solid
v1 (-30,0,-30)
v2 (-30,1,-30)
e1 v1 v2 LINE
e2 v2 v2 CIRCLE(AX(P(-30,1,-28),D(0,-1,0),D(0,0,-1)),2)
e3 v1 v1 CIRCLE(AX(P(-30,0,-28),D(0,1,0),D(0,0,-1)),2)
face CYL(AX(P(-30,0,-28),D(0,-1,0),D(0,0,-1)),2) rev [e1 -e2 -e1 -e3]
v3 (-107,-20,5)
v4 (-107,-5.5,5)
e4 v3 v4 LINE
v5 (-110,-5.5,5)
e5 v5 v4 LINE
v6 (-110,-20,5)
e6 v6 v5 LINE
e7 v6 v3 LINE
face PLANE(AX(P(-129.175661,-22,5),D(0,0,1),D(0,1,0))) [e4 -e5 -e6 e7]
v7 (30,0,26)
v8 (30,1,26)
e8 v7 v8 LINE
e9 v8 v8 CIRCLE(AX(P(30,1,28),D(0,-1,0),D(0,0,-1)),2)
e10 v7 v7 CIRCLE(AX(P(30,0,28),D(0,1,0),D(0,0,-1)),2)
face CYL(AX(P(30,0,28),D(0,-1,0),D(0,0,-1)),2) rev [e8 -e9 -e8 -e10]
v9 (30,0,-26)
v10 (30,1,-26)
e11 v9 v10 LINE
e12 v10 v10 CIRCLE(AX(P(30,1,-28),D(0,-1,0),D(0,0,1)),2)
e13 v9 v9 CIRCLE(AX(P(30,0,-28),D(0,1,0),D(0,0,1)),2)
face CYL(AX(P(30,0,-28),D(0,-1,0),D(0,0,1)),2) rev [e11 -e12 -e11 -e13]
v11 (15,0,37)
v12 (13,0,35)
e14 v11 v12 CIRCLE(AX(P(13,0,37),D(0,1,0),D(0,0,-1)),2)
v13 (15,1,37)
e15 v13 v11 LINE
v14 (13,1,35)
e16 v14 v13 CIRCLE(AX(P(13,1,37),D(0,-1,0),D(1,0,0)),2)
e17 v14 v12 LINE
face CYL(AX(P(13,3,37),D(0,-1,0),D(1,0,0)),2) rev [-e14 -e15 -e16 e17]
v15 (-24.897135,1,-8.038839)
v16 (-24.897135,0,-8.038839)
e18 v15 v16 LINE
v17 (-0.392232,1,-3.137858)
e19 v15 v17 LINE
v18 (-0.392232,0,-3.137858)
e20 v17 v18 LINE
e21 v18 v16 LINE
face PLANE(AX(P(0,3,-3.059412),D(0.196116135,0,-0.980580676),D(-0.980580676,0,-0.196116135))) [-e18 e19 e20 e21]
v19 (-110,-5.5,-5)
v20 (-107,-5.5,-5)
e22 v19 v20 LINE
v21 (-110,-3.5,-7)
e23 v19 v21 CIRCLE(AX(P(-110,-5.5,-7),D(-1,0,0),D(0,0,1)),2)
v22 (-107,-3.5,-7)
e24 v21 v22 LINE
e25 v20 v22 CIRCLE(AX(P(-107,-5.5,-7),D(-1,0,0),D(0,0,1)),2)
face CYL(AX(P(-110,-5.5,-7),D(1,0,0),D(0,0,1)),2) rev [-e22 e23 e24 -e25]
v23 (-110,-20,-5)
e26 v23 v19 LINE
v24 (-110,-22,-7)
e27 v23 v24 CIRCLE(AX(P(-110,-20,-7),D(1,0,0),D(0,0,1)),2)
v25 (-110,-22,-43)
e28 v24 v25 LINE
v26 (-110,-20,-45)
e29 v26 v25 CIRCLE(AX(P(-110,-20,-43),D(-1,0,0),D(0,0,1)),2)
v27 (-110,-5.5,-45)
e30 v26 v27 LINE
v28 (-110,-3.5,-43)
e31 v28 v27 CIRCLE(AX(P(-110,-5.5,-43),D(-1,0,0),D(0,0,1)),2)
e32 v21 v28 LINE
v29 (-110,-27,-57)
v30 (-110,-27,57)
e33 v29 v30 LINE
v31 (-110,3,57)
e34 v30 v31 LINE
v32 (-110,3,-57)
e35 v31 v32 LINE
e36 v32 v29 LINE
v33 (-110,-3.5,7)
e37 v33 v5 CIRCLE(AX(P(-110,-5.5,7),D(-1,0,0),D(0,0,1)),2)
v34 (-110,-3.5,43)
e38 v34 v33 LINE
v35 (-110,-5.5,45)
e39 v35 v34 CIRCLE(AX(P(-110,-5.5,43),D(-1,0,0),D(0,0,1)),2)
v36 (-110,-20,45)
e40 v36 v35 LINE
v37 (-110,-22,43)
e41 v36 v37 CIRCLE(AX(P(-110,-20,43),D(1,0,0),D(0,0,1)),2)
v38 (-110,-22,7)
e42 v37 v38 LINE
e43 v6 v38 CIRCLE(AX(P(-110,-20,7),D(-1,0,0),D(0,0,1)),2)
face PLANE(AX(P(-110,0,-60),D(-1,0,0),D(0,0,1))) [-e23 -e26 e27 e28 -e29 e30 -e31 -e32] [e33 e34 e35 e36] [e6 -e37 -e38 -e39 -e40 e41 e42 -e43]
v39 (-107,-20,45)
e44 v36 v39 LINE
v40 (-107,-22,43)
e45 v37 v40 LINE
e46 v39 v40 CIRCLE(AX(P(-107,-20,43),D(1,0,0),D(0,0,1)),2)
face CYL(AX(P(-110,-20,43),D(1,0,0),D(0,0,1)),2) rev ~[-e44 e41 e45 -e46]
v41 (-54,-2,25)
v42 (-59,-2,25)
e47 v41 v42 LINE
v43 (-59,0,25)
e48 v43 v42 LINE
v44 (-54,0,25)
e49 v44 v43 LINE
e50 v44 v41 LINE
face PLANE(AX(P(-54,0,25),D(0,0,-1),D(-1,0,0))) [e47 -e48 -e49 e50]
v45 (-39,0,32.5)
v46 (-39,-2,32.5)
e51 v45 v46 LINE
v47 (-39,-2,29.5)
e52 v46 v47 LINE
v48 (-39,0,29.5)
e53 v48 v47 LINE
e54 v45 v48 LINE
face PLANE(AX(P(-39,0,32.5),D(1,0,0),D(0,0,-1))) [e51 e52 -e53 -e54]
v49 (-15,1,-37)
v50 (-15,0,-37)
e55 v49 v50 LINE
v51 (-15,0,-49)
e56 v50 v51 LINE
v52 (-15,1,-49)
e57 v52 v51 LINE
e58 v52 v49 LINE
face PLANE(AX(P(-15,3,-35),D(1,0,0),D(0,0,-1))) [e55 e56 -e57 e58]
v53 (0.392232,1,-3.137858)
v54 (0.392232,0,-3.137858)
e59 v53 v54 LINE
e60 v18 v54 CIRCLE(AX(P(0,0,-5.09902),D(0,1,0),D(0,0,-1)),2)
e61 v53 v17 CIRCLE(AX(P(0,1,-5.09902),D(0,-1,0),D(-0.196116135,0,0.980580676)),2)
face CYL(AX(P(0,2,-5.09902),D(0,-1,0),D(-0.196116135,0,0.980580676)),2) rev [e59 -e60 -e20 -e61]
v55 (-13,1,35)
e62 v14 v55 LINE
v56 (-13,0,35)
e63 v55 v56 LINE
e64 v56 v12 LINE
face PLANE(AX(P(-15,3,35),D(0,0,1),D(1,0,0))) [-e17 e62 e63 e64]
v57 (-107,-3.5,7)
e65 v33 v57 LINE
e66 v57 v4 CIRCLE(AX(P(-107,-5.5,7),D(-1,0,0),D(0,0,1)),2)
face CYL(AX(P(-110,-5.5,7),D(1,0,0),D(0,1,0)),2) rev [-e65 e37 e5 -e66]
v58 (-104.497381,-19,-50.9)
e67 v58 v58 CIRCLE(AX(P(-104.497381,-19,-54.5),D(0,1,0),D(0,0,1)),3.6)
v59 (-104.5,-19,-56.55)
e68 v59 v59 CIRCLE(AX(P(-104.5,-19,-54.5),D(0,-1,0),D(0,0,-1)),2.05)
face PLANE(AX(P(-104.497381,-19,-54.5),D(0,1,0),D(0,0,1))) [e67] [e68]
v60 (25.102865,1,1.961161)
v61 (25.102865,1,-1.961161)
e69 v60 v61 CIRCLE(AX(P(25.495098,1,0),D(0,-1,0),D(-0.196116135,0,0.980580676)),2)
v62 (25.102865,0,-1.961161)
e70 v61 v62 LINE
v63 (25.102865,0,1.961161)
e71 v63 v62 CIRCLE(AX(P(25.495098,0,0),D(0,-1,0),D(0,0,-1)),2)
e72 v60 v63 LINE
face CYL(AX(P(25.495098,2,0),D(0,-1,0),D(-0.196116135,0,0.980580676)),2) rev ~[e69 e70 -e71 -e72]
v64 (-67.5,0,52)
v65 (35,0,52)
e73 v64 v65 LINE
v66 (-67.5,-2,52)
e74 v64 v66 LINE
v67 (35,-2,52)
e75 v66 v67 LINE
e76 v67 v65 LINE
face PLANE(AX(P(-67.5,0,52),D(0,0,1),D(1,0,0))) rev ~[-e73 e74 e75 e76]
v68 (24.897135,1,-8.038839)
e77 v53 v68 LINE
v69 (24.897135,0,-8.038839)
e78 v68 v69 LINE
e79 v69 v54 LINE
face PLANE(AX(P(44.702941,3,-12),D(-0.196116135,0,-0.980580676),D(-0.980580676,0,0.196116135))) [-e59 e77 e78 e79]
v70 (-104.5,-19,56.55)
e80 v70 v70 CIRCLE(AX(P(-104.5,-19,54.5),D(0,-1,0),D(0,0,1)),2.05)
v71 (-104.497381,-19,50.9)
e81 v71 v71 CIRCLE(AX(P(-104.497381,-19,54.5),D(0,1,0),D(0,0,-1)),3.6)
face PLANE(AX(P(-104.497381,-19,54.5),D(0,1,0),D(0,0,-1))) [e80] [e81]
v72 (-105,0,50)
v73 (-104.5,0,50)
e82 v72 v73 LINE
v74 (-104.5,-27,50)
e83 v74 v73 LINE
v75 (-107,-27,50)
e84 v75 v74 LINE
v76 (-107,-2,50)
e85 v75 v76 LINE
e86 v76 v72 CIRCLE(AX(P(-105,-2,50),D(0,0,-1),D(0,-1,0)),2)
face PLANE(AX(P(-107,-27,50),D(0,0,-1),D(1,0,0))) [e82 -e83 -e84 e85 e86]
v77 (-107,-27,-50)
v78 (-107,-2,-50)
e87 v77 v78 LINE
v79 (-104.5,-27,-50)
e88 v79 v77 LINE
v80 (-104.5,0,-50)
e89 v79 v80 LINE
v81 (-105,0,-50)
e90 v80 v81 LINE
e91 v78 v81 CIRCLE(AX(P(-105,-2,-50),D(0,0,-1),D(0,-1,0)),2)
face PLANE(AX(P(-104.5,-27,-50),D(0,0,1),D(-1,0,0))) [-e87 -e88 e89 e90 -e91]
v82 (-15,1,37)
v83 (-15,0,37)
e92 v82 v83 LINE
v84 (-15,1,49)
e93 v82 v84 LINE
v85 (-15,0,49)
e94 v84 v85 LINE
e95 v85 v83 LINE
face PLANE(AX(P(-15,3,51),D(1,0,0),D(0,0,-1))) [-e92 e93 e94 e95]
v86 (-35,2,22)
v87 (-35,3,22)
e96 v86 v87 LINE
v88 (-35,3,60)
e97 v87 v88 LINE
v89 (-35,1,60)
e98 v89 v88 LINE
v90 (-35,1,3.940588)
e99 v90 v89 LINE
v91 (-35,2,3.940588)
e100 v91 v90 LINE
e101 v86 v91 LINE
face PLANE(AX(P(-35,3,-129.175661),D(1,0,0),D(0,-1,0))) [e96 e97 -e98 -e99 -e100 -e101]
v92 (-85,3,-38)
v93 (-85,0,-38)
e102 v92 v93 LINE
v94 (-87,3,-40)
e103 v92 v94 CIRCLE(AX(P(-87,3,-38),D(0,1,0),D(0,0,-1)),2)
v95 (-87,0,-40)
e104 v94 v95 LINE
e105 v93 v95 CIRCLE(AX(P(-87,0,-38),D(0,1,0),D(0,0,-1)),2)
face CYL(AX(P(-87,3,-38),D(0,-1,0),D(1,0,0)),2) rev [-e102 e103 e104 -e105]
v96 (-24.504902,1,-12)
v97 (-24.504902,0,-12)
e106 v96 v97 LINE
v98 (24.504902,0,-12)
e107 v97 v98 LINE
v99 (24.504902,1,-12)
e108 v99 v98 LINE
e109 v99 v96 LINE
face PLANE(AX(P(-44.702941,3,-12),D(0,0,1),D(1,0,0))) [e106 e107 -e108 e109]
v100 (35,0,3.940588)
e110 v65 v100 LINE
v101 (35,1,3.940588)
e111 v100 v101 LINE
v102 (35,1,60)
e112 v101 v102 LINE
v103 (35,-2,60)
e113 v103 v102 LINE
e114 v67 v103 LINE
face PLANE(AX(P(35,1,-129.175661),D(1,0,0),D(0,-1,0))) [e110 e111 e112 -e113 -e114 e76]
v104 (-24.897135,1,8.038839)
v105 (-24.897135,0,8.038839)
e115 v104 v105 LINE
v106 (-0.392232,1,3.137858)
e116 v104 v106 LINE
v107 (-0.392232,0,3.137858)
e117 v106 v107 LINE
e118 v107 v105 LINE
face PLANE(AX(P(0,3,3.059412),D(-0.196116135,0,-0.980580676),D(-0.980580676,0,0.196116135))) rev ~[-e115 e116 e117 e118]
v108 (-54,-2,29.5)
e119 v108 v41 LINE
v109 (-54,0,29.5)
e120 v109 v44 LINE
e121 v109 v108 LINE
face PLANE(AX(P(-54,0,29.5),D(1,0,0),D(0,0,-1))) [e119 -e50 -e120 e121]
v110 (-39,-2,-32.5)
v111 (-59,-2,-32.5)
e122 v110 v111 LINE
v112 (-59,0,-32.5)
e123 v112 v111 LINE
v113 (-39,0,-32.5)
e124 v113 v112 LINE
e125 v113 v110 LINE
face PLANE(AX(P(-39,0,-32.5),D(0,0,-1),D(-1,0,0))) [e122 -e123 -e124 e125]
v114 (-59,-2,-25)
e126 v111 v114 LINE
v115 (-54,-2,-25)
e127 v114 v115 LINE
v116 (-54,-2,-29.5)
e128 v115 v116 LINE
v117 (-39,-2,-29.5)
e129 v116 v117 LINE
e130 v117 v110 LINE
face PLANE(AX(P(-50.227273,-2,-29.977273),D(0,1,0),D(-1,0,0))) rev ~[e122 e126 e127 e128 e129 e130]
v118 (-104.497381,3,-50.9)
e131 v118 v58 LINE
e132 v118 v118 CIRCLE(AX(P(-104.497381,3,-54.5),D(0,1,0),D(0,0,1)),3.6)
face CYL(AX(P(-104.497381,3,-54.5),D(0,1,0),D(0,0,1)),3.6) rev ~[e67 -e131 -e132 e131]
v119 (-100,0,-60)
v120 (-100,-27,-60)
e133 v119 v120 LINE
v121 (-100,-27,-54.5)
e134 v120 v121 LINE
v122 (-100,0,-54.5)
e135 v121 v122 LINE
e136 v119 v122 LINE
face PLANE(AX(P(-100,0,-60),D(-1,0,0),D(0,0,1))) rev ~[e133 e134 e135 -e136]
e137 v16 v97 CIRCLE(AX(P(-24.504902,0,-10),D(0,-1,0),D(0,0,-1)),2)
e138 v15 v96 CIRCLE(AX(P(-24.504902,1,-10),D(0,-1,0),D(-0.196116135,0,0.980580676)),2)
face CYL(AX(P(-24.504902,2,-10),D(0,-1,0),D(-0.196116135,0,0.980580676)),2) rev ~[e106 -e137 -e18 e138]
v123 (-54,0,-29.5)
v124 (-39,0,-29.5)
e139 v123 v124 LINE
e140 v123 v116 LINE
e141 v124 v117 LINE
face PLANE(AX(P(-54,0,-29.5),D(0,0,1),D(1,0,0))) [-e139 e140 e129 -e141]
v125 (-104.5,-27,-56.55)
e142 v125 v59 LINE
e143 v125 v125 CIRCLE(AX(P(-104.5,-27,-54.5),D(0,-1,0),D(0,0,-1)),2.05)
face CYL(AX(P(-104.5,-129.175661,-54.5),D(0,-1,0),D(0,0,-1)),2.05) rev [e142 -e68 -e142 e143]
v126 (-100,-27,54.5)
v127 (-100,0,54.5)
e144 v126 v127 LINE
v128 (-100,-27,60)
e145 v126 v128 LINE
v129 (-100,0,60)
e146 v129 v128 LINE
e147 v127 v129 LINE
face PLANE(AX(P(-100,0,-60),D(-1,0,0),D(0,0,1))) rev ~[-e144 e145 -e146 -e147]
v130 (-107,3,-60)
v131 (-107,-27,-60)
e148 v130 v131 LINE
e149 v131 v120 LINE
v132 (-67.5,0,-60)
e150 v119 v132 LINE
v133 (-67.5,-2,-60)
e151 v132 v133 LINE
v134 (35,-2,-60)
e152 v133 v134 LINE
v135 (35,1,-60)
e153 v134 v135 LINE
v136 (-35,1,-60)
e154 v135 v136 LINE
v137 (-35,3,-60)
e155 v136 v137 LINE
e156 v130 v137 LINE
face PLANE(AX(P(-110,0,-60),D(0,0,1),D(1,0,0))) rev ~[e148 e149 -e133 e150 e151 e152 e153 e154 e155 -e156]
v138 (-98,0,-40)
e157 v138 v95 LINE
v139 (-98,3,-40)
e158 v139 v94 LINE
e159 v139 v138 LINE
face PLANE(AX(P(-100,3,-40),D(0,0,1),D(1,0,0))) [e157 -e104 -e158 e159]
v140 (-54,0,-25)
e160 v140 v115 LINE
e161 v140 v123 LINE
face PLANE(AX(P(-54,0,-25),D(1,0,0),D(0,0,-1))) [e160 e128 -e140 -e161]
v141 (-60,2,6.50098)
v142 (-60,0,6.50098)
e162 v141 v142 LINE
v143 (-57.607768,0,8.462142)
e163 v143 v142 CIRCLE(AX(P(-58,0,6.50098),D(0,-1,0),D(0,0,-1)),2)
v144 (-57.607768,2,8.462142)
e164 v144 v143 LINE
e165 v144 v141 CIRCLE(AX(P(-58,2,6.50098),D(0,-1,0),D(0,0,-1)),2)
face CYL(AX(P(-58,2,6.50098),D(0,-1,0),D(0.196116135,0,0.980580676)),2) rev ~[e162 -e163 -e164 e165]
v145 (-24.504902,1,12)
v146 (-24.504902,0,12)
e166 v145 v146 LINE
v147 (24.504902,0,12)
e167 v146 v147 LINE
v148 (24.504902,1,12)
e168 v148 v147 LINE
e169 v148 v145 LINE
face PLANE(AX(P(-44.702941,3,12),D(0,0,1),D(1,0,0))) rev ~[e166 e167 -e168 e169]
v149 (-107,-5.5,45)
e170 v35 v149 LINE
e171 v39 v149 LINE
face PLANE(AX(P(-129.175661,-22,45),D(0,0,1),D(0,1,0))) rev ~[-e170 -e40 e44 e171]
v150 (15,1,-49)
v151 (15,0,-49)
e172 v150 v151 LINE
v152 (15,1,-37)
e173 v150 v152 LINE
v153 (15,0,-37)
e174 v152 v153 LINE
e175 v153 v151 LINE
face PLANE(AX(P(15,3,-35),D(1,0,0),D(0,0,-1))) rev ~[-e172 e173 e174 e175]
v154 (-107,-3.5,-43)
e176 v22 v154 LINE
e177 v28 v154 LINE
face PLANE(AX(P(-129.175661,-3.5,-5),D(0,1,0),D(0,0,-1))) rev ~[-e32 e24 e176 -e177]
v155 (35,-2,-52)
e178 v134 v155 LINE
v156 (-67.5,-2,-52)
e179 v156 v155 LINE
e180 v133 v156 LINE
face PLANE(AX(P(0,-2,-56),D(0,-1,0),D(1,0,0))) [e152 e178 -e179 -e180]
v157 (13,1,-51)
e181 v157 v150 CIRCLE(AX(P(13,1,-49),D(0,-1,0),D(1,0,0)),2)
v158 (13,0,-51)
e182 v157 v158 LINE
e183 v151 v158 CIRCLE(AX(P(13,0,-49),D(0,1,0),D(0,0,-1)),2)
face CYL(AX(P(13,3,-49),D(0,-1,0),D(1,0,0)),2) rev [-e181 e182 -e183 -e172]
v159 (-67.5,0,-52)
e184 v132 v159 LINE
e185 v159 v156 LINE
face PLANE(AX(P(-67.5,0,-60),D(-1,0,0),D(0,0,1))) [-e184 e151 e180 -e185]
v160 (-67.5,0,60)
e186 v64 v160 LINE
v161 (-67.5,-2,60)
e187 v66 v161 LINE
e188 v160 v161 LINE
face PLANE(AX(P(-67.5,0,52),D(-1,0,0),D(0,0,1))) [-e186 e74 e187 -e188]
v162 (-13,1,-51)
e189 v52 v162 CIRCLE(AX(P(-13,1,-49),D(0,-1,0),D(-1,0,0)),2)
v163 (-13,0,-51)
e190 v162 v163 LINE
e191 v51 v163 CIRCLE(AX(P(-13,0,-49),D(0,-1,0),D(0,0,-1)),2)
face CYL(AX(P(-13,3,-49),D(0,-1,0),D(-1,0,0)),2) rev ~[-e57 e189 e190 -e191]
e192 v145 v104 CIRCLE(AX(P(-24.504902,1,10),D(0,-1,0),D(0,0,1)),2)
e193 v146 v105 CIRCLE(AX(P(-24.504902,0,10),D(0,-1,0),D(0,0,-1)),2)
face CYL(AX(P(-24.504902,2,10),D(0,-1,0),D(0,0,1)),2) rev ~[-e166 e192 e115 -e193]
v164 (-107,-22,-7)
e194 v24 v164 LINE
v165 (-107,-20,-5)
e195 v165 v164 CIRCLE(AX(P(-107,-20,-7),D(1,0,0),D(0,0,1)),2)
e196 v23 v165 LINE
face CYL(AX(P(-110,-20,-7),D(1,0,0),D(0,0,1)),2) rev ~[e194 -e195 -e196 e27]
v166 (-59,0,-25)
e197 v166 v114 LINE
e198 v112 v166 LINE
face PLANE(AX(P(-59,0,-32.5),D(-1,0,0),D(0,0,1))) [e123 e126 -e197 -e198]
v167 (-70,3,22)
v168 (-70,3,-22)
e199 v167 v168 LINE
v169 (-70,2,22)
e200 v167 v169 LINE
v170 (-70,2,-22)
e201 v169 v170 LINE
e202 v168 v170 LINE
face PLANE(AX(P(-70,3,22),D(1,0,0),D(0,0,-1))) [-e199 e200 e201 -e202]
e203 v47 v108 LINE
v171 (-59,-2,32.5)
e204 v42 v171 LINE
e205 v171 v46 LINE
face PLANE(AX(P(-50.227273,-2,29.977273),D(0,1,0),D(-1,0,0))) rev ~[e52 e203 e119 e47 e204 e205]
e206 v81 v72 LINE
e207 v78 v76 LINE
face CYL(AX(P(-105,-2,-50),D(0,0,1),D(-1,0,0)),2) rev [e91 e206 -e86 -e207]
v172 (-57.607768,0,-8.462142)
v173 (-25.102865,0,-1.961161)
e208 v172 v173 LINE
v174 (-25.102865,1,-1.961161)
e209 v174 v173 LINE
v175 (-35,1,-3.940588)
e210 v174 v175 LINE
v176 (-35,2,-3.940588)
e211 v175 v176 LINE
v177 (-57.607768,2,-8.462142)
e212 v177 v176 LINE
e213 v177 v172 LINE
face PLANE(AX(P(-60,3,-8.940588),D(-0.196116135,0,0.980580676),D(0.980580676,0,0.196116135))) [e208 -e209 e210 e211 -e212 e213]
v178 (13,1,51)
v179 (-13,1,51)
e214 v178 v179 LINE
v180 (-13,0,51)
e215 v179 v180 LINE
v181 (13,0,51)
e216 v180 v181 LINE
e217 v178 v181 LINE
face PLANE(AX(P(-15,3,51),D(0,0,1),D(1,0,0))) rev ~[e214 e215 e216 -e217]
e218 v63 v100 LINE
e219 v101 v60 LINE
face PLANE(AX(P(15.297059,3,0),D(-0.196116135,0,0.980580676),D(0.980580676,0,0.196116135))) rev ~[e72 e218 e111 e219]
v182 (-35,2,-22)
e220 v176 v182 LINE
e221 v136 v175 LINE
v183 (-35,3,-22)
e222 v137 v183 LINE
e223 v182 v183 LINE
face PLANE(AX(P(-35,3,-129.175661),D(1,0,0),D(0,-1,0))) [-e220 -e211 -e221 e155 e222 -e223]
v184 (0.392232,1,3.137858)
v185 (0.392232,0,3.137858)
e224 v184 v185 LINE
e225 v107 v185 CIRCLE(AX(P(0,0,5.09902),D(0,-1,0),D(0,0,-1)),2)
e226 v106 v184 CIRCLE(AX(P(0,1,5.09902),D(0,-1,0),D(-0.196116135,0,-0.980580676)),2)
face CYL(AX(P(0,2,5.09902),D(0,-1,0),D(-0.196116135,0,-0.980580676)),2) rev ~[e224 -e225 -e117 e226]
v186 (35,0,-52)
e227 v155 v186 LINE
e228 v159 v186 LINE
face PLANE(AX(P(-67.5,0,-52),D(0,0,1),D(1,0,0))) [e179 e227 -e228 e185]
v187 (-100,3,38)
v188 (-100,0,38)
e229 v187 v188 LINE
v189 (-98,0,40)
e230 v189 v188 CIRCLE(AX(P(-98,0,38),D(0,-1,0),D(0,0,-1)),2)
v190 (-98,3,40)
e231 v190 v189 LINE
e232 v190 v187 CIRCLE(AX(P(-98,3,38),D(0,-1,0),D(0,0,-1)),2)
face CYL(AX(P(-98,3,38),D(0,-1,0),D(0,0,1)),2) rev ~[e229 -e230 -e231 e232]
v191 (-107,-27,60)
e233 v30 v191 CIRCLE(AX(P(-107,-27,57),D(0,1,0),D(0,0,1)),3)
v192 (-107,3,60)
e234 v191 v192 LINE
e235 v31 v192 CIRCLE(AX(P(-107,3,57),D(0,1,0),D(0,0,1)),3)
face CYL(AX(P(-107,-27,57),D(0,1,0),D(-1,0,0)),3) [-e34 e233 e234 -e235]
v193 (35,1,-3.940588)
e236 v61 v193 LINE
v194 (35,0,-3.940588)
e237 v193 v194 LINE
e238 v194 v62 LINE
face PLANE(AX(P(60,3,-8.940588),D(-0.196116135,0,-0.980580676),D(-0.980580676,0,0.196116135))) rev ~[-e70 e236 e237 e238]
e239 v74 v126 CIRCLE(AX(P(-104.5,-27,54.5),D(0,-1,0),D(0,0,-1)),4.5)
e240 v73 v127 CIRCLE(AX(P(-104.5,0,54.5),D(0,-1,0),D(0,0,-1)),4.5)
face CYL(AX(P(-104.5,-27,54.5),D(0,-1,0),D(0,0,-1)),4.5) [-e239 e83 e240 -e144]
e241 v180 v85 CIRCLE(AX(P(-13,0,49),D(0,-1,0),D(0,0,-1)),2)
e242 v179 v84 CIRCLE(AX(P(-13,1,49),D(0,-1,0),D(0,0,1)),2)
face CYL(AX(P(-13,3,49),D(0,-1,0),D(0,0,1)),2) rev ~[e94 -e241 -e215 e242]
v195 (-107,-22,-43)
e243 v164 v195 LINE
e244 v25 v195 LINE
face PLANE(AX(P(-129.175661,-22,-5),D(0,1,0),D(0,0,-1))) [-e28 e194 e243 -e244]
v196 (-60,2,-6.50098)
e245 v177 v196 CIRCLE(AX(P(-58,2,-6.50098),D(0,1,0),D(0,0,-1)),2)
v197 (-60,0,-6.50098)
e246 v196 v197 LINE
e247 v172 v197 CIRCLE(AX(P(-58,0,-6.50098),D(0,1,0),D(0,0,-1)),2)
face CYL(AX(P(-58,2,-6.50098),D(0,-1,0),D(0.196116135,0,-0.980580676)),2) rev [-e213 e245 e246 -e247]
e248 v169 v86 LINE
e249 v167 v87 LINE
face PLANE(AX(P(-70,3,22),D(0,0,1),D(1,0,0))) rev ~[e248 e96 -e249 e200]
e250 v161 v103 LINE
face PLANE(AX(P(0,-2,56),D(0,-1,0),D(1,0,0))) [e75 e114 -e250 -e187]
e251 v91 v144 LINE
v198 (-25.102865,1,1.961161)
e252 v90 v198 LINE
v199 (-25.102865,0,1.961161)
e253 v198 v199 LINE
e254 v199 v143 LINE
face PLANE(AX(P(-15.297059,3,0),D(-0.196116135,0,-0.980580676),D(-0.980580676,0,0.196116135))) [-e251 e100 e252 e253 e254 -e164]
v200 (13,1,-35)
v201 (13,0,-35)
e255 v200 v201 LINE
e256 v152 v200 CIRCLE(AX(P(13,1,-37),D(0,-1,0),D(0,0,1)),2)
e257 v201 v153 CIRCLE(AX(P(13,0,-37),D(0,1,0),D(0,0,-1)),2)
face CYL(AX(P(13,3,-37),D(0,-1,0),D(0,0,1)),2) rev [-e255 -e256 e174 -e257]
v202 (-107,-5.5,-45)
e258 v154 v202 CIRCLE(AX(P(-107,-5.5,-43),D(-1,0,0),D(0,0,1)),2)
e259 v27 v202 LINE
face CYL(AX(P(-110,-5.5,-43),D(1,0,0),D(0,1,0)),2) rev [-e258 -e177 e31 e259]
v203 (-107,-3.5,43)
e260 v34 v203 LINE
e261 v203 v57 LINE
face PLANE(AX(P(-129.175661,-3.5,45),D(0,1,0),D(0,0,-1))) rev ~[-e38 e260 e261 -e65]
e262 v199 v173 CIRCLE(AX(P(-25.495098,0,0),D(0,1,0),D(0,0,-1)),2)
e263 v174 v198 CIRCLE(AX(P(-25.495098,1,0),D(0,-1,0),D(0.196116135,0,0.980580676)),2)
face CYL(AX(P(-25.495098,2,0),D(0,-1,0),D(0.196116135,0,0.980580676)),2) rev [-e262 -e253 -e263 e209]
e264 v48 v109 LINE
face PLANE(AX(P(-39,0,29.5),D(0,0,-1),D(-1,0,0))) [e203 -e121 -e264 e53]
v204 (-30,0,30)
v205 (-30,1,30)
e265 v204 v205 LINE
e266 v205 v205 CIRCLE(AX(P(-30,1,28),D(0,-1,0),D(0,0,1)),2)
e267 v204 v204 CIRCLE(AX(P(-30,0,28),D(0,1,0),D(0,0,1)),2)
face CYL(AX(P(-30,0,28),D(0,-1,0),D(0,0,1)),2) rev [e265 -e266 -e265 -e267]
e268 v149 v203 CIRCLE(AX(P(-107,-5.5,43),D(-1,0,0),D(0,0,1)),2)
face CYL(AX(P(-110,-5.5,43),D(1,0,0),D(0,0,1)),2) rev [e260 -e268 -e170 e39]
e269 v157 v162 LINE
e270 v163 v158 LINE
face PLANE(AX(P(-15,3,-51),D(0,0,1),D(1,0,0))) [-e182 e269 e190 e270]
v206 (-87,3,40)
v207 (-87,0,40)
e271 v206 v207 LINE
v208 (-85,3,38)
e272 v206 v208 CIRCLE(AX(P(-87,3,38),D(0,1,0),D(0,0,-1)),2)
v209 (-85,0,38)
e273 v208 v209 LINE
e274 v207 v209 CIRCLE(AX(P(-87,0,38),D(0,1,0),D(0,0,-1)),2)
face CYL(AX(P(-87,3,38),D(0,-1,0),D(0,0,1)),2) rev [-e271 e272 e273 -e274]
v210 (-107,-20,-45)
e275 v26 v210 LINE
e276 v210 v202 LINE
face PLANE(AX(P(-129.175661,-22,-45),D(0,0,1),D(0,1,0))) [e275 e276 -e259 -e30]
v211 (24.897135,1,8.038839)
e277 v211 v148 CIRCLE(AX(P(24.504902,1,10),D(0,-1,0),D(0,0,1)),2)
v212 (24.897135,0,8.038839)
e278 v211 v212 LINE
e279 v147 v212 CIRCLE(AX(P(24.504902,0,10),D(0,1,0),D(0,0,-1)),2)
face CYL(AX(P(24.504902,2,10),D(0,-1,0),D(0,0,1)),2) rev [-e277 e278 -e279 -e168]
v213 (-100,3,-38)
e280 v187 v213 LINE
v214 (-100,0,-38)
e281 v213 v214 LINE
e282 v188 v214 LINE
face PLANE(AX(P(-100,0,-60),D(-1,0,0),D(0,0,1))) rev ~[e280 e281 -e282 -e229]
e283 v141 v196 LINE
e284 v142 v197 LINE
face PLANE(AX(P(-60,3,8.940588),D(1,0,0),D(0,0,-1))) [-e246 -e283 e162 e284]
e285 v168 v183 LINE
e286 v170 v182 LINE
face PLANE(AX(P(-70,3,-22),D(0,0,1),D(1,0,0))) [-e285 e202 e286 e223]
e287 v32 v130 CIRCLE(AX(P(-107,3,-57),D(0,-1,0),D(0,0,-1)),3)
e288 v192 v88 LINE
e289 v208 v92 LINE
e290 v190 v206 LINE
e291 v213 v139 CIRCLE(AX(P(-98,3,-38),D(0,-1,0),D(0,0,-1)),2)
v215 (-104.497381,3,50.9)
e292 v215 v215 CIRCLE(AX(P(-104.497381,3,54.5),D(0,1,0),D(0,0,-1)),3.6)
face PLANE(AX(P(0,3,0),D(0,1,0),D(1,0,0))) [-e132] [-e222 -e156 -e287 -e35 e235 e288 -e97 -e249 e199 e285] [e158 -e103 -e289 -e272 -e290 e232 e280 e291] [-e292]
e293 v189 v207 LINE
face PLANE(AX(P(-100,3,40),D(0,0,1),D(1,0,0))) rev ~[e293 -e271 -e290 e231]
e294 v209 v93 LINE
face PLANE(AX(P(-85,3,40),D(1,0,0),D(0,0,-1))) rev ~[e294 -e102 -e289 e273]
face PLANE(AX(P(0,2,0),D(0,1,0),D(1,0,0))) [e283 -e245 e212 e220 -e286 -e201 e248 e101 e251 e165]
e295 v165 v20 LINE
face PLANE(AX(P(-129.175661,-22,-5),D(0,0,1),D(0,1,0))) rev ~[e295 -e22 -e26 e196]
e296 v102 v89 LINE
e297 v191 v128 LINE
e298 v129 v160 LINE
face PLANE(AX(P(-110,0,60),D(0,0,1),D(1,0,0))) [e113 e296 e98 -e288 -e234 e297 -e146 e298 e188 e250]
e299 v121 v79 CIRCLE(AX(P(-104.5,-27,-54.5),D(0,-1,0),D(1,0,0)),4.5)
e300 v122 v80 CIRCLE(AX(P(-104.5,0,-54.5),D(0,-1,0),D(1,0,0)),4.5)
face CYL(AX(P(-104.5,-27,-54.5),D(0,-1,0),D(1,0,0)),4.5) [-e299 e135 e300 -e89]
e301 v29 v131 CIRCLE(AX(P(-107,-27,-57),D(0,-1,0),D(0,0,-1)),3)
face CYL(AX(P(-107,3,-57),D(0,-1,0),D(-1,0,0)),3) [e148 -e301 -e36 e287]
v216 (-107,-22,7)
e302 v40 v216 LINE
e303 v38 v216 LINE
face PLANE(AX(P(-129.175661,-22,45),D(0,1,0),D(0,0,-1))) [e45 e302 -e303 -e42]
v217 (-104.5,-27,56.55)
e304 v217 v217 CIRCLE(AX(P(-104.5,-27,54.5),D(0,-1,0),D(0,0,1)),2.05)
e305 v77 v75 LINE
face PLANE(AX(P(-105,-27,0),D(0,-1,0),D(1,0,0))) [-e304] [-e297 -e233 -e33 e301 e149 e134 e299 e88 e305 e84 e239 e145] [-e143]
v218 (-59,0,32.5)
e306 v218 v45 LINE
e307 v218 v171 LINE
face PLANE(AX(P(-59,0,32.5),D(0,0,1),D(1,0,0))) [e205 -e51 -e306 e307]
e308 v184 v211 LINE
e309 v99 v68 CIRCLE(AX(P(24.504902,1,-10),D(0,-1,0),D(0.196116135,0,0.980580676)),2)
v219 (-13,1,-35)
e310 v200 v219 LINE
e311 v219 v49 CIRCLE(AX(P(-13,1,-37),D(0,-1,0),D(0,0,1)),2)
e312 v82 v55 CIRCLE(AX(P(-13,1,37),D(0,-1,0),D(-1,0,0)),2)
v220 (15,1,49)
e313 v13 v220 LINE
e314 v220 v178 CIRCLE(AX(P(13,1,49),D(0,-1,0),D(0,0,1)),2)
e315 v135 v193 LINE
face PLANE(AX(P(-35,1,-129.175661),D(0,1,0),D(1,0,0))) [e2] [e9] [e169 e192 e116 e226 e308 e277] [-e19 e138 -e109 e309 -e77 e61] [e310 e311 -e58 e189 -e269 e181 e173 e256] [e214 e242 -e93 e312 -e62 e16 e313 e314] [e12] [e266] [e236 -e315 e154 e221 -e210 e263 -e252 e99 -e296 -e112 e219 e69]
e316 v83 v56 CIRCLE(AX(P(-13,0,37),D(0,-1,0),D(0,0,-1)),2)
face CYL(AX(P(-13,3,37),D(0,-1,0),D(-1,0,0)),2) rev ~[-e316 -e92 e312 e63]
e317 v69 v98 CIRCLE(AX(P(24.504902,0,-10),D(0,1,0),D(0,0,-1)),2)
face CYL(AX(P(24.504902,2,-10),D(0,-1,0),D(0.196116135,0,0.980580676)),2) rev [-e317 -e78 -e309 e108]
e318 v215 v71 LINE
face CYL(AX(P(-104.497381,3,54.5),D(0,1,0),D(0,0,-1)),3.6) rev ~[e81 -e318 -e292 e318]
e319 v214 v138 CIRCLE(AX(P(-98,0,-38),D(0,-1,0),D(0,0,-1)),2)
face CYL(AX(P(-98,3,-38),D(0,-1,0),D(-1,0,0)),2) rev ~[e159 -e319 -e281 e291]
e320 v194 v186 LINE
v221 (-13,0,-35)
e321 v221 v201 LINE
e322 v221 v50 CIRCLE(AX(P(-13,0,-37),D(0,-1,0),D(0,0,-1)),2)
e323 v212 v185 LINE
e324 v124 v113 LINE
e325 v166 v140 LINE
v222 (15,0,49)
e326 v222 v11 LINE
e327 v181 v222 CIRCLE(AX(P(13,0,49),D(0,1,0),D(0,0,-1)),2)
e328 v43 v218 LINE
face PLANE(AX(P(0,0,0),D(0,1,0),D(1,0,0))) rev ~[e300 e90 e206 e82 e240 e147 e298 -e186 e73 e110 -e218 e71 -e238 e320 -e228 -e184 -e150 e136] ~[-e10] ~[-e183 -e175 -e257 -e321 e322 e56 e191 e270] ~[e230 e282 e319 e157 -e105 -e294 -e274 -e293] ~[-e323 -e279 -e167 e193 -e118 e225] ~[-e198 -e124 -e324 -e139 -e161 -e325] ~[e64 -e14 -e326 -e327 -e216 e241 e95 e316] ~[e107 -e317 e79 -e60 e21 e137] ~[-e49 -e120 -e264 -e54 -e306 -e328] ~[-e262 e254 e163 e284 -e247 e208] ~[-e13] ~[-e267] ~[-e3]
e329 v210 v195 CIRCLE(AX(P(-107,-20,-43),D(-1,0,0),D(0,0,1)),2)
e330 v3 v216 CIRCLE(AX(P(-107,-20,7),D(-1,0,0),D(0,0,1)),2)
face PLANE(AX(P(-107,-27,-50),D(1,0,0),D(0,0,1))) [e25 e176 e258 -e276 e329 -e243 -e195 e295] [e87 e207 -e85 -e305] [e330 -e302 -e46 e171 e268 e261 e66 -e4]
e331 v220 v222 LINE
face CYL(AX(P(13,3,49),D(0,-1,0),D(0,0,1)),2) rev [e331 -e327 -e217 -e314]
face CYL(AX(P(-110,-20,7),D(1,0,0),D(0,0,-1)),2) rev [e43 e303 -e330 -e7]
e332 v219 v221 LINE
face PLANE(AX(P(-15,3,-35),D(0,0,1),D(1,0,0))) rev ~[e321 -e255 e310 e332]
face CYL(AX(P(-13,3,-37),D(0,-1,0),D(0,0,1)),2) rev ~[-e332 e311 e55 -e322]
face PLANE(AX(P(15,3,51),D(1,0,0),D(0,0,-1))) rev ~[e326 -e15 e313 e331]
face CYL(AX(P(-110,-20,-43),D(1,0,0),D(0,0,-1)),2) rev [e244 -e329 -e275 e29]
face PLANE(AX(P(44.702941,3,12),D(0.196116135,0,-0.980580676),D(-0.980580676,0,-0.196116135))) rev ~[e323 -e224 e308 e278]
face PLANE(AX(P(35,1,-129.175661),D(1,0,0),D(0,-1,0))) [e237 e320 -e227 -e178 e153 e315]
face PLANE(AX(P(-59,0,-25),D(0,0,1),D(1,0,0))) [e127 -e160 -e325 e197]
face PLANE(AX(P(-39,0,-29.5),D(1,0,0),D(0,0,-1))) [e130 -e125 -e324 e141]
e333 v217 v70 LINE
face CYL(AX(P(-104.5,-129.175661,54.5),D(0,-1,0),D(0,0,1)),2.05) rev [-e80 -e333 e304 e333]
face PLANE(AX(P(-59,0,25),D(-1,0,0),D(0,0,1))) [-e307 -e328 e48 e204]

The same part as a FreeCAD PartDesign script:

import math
import FreeCAD as App
import Part
import Sketcher
from FreeCAD import Vector
Q = App.Units.Quantity


def edges_at(feature, points):
    """Names of the edges that pass closest to the given points."""
    edges = feature.Shape.Edges
    near = lambda p: min(range(len(edges)), key=lambda i: edges[i].distToShape(Part.Vertex(*p))[0])
    return sorted({f"Edge{near(p) + 1}" for p in points})


def add_polygon(sketch, points):
    """Adds a closed chain of lines whose ends are joined by coincident constraints."""
    first, n = sketch.GeometryCount, len(points)
    for a, b in zip(points, points[1:] + points[:1]):
        sketch.addGeometry(Part.LineSegment(App.Vector(*a, 0), App.Vector(*b, 0)), False)
    for i in range(n):
        sketch.addConstraint(Sketcher.Constraint("Coincident", first + i, 2, first + (i + 1) % n, 1))

doc = App.newDocument("Part")
body = doc.addObject("PartDesign::Body", "Body")

# Sketch on XZ plane
sketch1 = body.newObject("Sketcher::SketchObject", "Sketch")
sketch1.AttachmentSupport = (doc.getObject("XZ_Plane"), [""])
sketch1.MapMode = "FlatFace"
add_polygon(sketch1, [(-110, -60), (-110, 60), (110, 60), (110, -60)])  # lines 0-3
sketch1.addConstraint([
    Sketcher.Constraint("Vertical", 0),
    Sketcher.Constraint("Horizontal", 1),
    Sketcher.Constraint("Vertical", 2),
    Sketcher.Constraint("Horizontal", 3),
    Sketcher.Constraint("Symmetric", 0, 2, 2, 2, -1, 1),
    Sketcher.Constraint("DistanceX", 1, 1, 1, 2, Q("220 mm")),
    Sketcher.Constraint("DistanceY", 0, 1, 0, 2, Q("120 mm")),
])
pad1 = body.newObject("PartDesign::Pad", "Pad")
pad1.Profile = sketch1
pad1.Length = 3
pad1.Reversed = True

# Sketch on XZ plane
sketch2 = body.newObject("Sketcher::SketchObject", "Sketch001")
sketch2.AttachmentSupport = (doc.getObject("XZ_Plane"), [""])
sketch2.MapMode = "FlatFace"
add_polygon(sketch2, [(-110, 60), (-110, -60), (-100, -60), (-100, 60)])  # lines 0-3
add_polygon(sketch2, [(100, 60), (100, -60), (110, -60), (110, 60)])  # lines 4-7
sketch2.addConstraint([
    Sketcher.Constraint("Vertical", 0),
    Sketcher.Constraint("Horizontal", 1),
    Sketcher.Constraint("Vertical", 2),
    Sketcher.Constraint("Horizontal", 3),
    Sketcher.Constraint("Vertical", 4),
    Sketcher.Constraint("Horizontal", 5),
    Sketcher.Constraint("Vertical", 6),
    Sketcher.Constraint("Horizontal", 7),
    Sketcher.Constraint("Symmetric", 2, 2, 4, 2, -1, 1),
    Sketcher.Constraint("Symmetric", 0, 2, 6, 2, -1, 1),
    Sketcher.Constraint("Horizontal", 1, 2, 4, 2),
    Sketcher.Constraint("DistanceX", 1, 1, 1, 2, Q("10 mm")),
    Sketcher.Constraint("DistanceY", 0, 2, 0, 1, Q("120 mm")),
    Sketcher.Constraint("DistanceX", 0, 2, -1, 1, Q("110 mm")),
])
pad2 = body.newObject("PartDesign::Pad", "Pad001")
pad2.Profile = sketch2
pad2.Length = 27

# Sketch on XZ plane
sketch3 = body.newObject("Sketcher::SketchObject", "Sketch002")
sketch3.AttachmentSupport = (doc.getObject("XZ_Plane"), [""])
sketch3.MapMode = "FlatFace"
sketch3.addGeometry([
    Part.Circle(Vector(104.5, -54.5, 0), Vector(0, 0, 1), 2),
    Part.Circle(Vector(-104.5, -54.5, 0), Vector(0, 0, 1), 2),
    Part.Circle(Vector(-104.5, 54.5, 0), Vector(0, 0, 1), 2),
    Part.Circle(Vector(104.5, 54.5, 0), Vector(0, 0, 1), 2),
], False)
sketch3.addConstraint([
    Sketcher.Constraint("Equal", 0, 1),
    Sketcher.Constraint("Equal", 1, 2),
    Sketcher.Constraint("Equal", 2, 3),
    Sketcher.Constraint("Symmetric", 0, 3, 2, 3, -1, 1),
    Sketcher.Constraint("Symmetric", 1, 3, 3, 3, -1, 1),
    Sketcher.Constraint("Symmetric", 0, 3, 1, 3, -2),
    Sketcher.Constraint("Diameter", 0, Q("4.1 mm")),
    Sketcher.Constraint("DistanceX", 1, 3, 0, 3, Q("209 mm")),
    Sketcher.Constraint("DistanceY", 1, 3, 2, 3, Q("109 mm")),
])
pocket1 = body.newObject("PartDesign::Pocket", "Pocket")
pocket1.Profile = sketch3
pocket1.Type = "ThroughAll"
pocket1.Midplane = True

# Sketch on XZ plane
sketch4 = body.newObject("Sketcher::SketchObject", "Sketch003")
sketch4.AttachmentSupport = (doc.getObject("XZ_Plane"), [""])
sketch4.MapMode = "FlatFace"
sketch4.AttachmentOffset = App.Placement(Vector(0, 0, -3), App.Rotation())
sketch4.addGeometry([
    Part.Circle(Vector(-104.5, -54.5, 0), Vector(0, 0, 1), 3.6),
    Part.Circle(Vector(-104.5, 54.5, 0), Vector(0, 0, 1), 3.6),
    Part.Circle(Vector(104.5, 54.5, 0), Vector(0, 0, 1), 3.6),
    Part.Circle(Vector(104.5, -54.5, 0), Vector(0, 0, 1), 3.6),
], False)
sketch4.addConstraint([
    Sketcher.Constraint("Equal", 0, 1),
    Sketcher.Constraint("Equal", 1, 2),
    Sketcher.Constraint("Equal", 2, 3),
    Sketcher.Constraint("Symmetric", 0, 3, 1, 3, -1),
    Sketcher.Constraint("Symmetric", 2, 3, 3, 3, -1),
    Sketcher.Constraint("Horizontal", 1, 3, 2, 3),
    Sketcher.Constraint("Diameter", 0, Q("7.2 mm")),
    Sketcher.Constraint("DistanceY", 0, 3, 1, 3, Q("109 mm")),
    Sketcher.Constraint("DistanceX", -1, 1, 2, 3, Q("104.5 mm")),
    Sketcher.Constraint("DistanceX", 0, 3, -1, 1, Q("104.497381 mm")),
])
pocket2 = body.newObject("PartDesign::Pocket", "Pocket001")
pocket2.Profile = sketch4
pocket2.Length = 22
pocket2.Reversed = True

# Sketch on YZ plane
sketch5 = body.newObject("Sketcher::SketchObject", "Sketch004")
sketch5.AttachmentSupport = (doc.getObject("YZ_Plane"), [""])
sketch5.MapMode = "FlatFace"
add_polygon(sketch5, [(-4, 45), (-22, 45), (-22, 5), (-4, 5)])  # lines 0-3
add_polygon(sketch5, [(-4, -5), (-22, -5), (-22, -45), (-4, -45)])  # lines 4-7
sketch5.addConstraint([
    Sketcher.Constraint("Horizontal", 0),
    Sketcher.Constraint("Vertical", 1),
    Sketcher.Constraint("Horizontal", 2),
    Sketcher.Constraint("Vertical", 3),
    Sketcher.Constraint("Horizontal", 4),
    Sketcher.Constraint("Vertical", 5),
    Sketcher.Constraint("Horizontal", 6),
    Sketcher.Constraint("Vertical", 7),
    Sketcher.Constraint("Symmetric", 1, 2, 4, 2, -1),
    Sketcher.Constraint("Symmetric", 3, 2, 6, 2, -1),
    Sketcher.Constraint("DistanceY", 1, 2, 1, 1, Q("40 mm")),
    Sketcher.Constraint("DistanceX", 0, 2, 0, 1, Q("18.5 mm")),
    Sketcher.Constraint("DistanceX", 0, 2, -1, 1, Q("22 mm")),
    Sketcher.Constraint("DistanceY", -1, 1, 0, 2, Q("45 mm")),
])
pocket3 = body.newObject("PartDesign::Pocket", "Pocket002")
pocket3.Profile = sketch5
pocket3.Type = "ThroughAll"
pocket3.Midplane = True

# Sketch on XZ plane
sketch6 = body.newObject("Sketcher::SketchObject", "Sketch005")
sketch6.AttachmentSupport = (doc.getObject("XZ_Plane"), [""])
sketch6.MapMode = "FlatFace"
sketch6.AttachmentOffset = App.Placement(Vector(0, 0, -3), App.Rotation())
add_polygon(sketch6, [(-70, -22), (-70, 22), (70, 22), (70, -22)])  # lines 0-3
sketch6.addConstraint([
    Sketcher.Constraint("Vertical", 0),
    Sketcher.Constraint("Horizontal", 1),
    Sketcher.Constraint("Vertical", 2),
    Sketcher.Constraint("Horizontal", 3),
    Sketcher.Constraint("Symmetric", 0, 2, 2, 2, -1, 1),
    Sketcher.Constraint("DistanceX", 1, 1, 1, 2, Q("140 mm")),
    Sketcher.Constraint("DistanceY", 0, 1, 0, 2, Q("44 mm")),
])
pocket4 = body.newObject("PartDesign::Pocket", "Pocket003")
pocket4.Profile = sketch6
pocket4.Length = 1
pocket4.Reversed = True

# Sketch on XZ plane
sketch7 = body.newObject("Sketcher::SketchObject", "Sketch006")
sketch7.AttachmentSupport = (doc.getObject("XZ_Plane"), [""])
sketch7.MapMode = "FlatFace"
sketch7.AttachmentOffset = App.Placement(Vector(0, 0, -3), App.Rotation())
add_polygon(sketch7, [(-100, -40), (-100, 40), (-85, 40), (-85, -40)])  # lines 0-3
add_polygon(sketch7, [(85, -45), (85, -5), (100, -5), (100, -45)])  # lines 4-7
add_polygon(sketch7, [(-45, 12), (45, 12), (0, 3)])  # lines 8-10
add_polygon(sketch7, [(-60, -9), (-60, 9), (-15, 0)])  # lines 11-13
add_polygon(sketch7, [(45, -12), (-45, -12), (0, -3)])  # lines 14-16
add_polygon(sketch7, [(60, 9), (60, -9), (15, 0)])  # lines 17-19
add_polygon(sketch7, [(-15, 35), (-15, 51), (15, 51), (15, 35)])  # lines 20-23
add_polygon(sketch7, [(-15, -51), (-15, -35), (15, -35), (15, -51)])  # lines 24-27
add_polygon(sketch7, [(85, 5), (85, 45), (100, 45), (100, 5)])  # lines 28-31
sketch7.addConstraint([
    Sketcher.Constraint("Vertical", 0),
    Sketcher.Constraint("Horizontal", 1),
    Sketcher.Constraint("Vertical", 2),
    Sketcher.Constraint("Horizontal", 3),
    Sketcher.Constraint("Vertical", 4),
    Sketcher.Constraint("Horizontal", 5),
    Sketcher.Constraint("Vertical", 6),
    Sketcher.Constraint("Horizontal", 7),
    Sketcher.Constraint("Horizontal", 8),
    Sketcher.Constraint("Vertical", 11),
    Sketcher.Constraint("Horizontal", 14),
    Sketcher.Constraint("Vertical", 17),
    Sketcher.Constraint("Vertical", 20),
    Sketcher.Constraint("Horizontal", 21),
    Sketcher.Constraint("Vertical", 22),
    Sketcher.Constraint("Horizontal", 23),
    Sketcher.Constraint("Vertical", 24),
    Sketcher.Constraint("Horizontal", 25),
    Sketcher.Constraint("Vertical", 26),
    Sketcher.Constraint("Horizontal", 27),
    Sketcher.Constraint("Vertical", 28),
    Sketcher.Constraint("Horizontal", 29),
    Sketcher.Constraint("Vertical", 30),
    Sketcher.Constraint("Horizontal", 31),
    Sketcher.Constraint("Symmetric", 8, 2, 14, 2, -1, 1),
    Sketcher.Constraint("Symmetric", 9, 2, 15, 2, -1, 1),
    Sketcher.Constraint("Symmetric", 11, 2, 17, 2, -1, 1),
    Sketcher.Constraint("Symmetric", 12, 2, 18, 2, -1, 1),
    Sketcher.Constraint("Symmetric", 22, 2, 24, 2, -1, 1),
    Sketcher.Constraint("Symmetric", 20, 2, 26, 2, -1, 1),
    Sketcher.Constraint("Symmetric", 7, 2, 28, 2, -1),
    Sketcher.Constraint("Symmetric", 5, 2, 30, 2, -1),
    Sketcher.Constraint("PointOnObject", 9, 2, -2),
    Sketcher.Constraint("PointOnObject", 12, 2, -1),
    Sketcher.Constraint("Parallel", 10, 12),
    Sketcher.Constraint("Parallel", 9, 13),
    Sketcher.Constraint("Parallel", 12, 16),
    Sketcher.Constraint("Parallel", 15, 19),
    Sketcher.Constraint("Horizontal", 13, 2, 17, 2),
    Sketcher.Constraint("Vertical", 23, 2, 24, 2),
    Sketcher.Constraint("Equal", 3, 5),
    Sketcher.Constraint("Equal", 10, 12),
    Sketcher.Constraint("DistanceX", 1, 1, 1, 2, Q("15 mm")),
    Sketcher.Constraint("DistanceX", 21, 1, 21, 2, Q("30 mm")),
    Sketcher.Constraint("DistanceY", 0, 1, 0, 2, Q("80 mm")),
    Sketcher.Constraint("DistanceY", 4, 1, 4, 2, Q("40 mm")),
    Sketcher.Constraint("DistanceY", 20, 1, 20, 2, Q("16 mm")),
    Sketcher.Constraint("DistanceX", 0, 2, -1, 1, Q("100 mm")),
    Sketcher.Constraint("DistanceY", -1, 1, 0, 2, Q("40 mm")),
    Sketcher.Constraint("DistanceX", -1, 1, 4, 2, Q("85 mm")),
    Sketcher.Constraint("DistanceY", 4, 2, -1, 1, Q("5 mm")),
    Sketcher.Constraint("DistanceY", -1, 1, 8, 2, Q("12 mm")),
    Sketcher.Constraint("DistanceX", 11, 2, -1, 1, Q("60 mm")),
    Sketcher.Constraint("DistanceY", -1, 1, 20, 2, Q("51 mm")),
    Sketcher.Constraint("DistanceX", 8, 1, 8, 2, Q("89.405883 mm")),
    Sketcher.Constraint("DistanceY", 11, 1, 11, 2, Q("17.881177 mm")),
])
pocket5 = body.newObject("PartDesign::Pocket", "Pocket004")
pocket5.Profile = sketch7
pocket5.Type = "ThroughAll"
pocket5.Reversed = True

# Sketch on XZ plane
sketch8 = body.newObject("Sketcher::SketchObject", "Sketch007")
sketch8.AttachmentSupport = (doc.getObject("XZ_Plane"), [""])
sketch8.MapMode = "FlatFace"
sketch8.addGeometry([
    Part.Circle(Vector(30, -28, 0), Vector(0, 0, 1), 2),
    Part.Circle(Vector(-30, -28, 0), Vector(0, 0, 1), 2),
    Part.Circle(Vector(30, 28, 0), Vector(0, 0, 1), 2),
    Part.Circle(Vector(-30, 28, 0), Vector(0, 0, 1), 2),
], False)
sketch8.addConstraint([
    Sketcher.Constraint("Equal", 0, 1),
    Sketcher.Constraint("Equal", 1, 2),
    Sketcher.Constraint("Equal", 2, 3),
    Sketcher.Constraint("Symmetric", 1, 3, 2, 3, -1, 1),
    Sketcher.Constraint("Symmetric", 0, 3, 3, 3, -1, 1),
    Sketcher.Constraint("Symmetric", 0, 3, 1, 3, -2),
    Sketcher.Constraint("Diameter", 0, Q("4 mm")),
    Sketcher.Constraint("DistanceX", -1, 1, 0, 3, Q("30 mm")),
    Sketcher.Constraint("DistanceY", 0, 3, -1, 1, Q("28 mm")),
])
pocket6 = body.newObject("PartDesign::Pocket", "Pocket005")
pocket6.Profile = sketch8
pocket6.Type = "ThroughAll"

# Sketch on XZ plane
sketch9 = body.newObject("Sketcher::SketchObject", "Sketch008")
sketch9.AttachmentSupport = (doc.getObject("XZ_Plane"), [""])
sketch9.MapMode = "FlatFace"
sketch9.AttachmentOffset = App.Placement(Vector(0, 0, 27), App.Rotation())
sketch9.addGeometry([
    Part.LineSegment(Vector(-100, -54.5, 0), Vector(-100, 54.5, 0)),  # 0
    Part.ArcOfCircle(Part.Circle(Vector(-104.5, 54.5, 0), Vector(0, 0, 1), 4.5), math.radians(-90), math.radians(0)),  # 1
    Part.LineSegment(Vector(-104.5, 50, 0), Vector(-107, 50, 0)),  # 2
    Part.LineSegment(Vector(-107, 50, 0), Vector(-107, -50, 0)),  # 3
    Part.LineSegment(Vector(-107, -50, 0), Vector(-104.5, -50, 0)),  # 4
    Part.ArcOfCircle(Part.Circle(Vector(-104.5, -54.5, 0), Vector(0, 0, 1), 4.5), math.radians(0), math.radians(90)),  # 5
    Part.LineSegment(Vector(100, 54.5, 0), Vector(100, -54.5, 0)),  # 6
    Part.ArcOfCircle(Part.Circle(Vector(104.5, -54.5, 0), Vector(0, 0, 1), 4.5), math.radians(90), math.radians(180)),  # 7
    Part.LineSegment(Vector(104.5, -50, 0), Vector(107, -50, 0)),  # 8
    Part.LineSegment(Vector(107, -50, 0), Vector(107, 50, 0)),  # 9
    Part.LineSegment(Vector(107, 50, 0), Vector(104.5, 50, 0)),  # 10
    Part.ArcOfCircle(Part.Circle(Vector(104.5, 54.5, 0), Vector(0, 0, 1), 4.5), math.radians(-180), math.radians(-90)),  # 11
], False)
sketch9.addConstraint([
    Sketcher.Constraint("Tangent", 0, 2, 1, 2),
    Sketcher.Constraint("Tangent", 1, 1, 2, 1),
    Sketcher.Constraint("Coincident", 2, 2, 3, 1),
    Sketcher.Constraint("Coincident", 3, 2, 4, 1),
    Sketcher.Constraint("Tangent", 4, 2, 5, 2),
    Sketcher.Constraint("Tangent", 5, 1, 0, 1),
    Sketcher.Constraint("Tangent", 6, 2, 7, 2),
    Sketcher.Constraint("Tangent", 7, 1, 8, 1),
    Sketcher.Constraint("Coincident", 8, 2, 9, 1),
    Sketcher.Constraint("Coincident", 9, 2, 10, 1),
    Sketcher.Constraint("Tangent", 10, 2, 11, 2),
    Sketcher.Constraint("Tangent", 11, 1, 6, 1),
    Sketcher.Constraint("Vertical", 0),
    Sketcher.Constraint("Horizontal", 2),
    Sketcher.Constraint("Vertical", 3),
    Sketcher.Constraint("Horizontal", 4),
    Sketcher.Constraint("Vertical", 6),
    Sketcher.Constraint("Horizontal", 8),
    Sketcher.Constraint("Vertical", 9),
    Sketcher.Constraint("Horizontal", 10),
    Sketcher.Constraint("Equal", 1, 5),
    Sketcher.Constraint("Equal", 5, 7),
    Sketcher.Constraint("Equal", 7, 11),
    Sketcher.Constraint("Symmetric", 1, 3, 7, 3, -1, 1),
    Sketcher.Constraint("Symmetric", 3, 2, 9, 2, -1, 1),
    Sketcher.Constraint("Horizontal", 5, 3, 7, 3),
    Sketcher.Constraint("Radius", 1, Q("4.5 mm")),
    Sketcher.Constraint("DistanceY", 0, 1, 0, 2, Q("109 mm")),
    Sketcher.Constraint("DistanceX", 2, 2, 2, 1, Q("2.5 mm")),
    Sketcher.Constraint("DistanceX", 0, 2, -1, 1, Q("100 mm")),
])
pocket7 = body.newObject("PartDesign::Pocket", "Pocket006")
pocket7.Profile = sketch9
pocket7.Length = 27

# Sketch on XZ plane
sketch10 = body.newObject("Sketcher::SketchObject", "Sketch009")
sketch10.AttachmentSupport = (doc.getObject("XZ_Plane"), [""])
sketch10.MapMode = "FlatFace"
add_polygon(sketch10, [(-67.5, 60), (-67.5, 52), (67.5, 52), (67.5, 60)])  # lines 0-3
add_polygon(sketch10, [(-67.5, -52), (-67.5, -60), (67.5, -60), (67.5, -52)])  # lines 4-7
add_polygon(sketch10, [(-39, 32.5), (-59, 32.5), (-59, 25), (-54, 25), (-54, 29.5), (-39, 29.5)])  # lines 8-13
add_polygon(sketch10, [(39, 29.5), (54, 29.5), (54, 25), (59, 25), (59, 32.5), (39, 32.5)])  # lines 14-19
add_polygon(sketch10, [(39, -32.5), (59, -32.5), (59, -25), (54, -25), (54, -29.5), (39, -29.5)])  # lines 20-25
add_polygon(sketch10, [(-39, -29.5), (-54, -29.5), (-54, -25), (-59, -25), (-59, -32.5), (-39, -32.5)])  # lines 26-31
sketch10.addConstraint([
    Sketcher.Constraint("Vertical", 0),
    Sketcher.Constraint("Horizontal", 1),
    Sketcher.Constraint("Vertical", 2),
    Sketcher.Constraint("Horizontal", 3),
    Sketcher.Constraint("Vertical", 4),
    Sketcher.Constraint("Horizontal", 5),
    Sketcher.Constraint("Vertical", 6),
    Sketcher.Constraint("Horizontal", 7),
    Sketcher.Constraint("Horizontal", 8),
    Sketcher.Constraint("Vertical", 9),
    Sketcher.Constraint("Horizontal", 10),
    Sketcher.Constraint("Vertical", 11),
    Sketcher.Constraint("Horizontal", 12),
    Sketcher.Constraint("Vertical", 13),
    Sketcher.Constraint("Horizontal", 14),
    Sketcher.Constraint("Vertical", 15),
    Sketcher.Constraint("Horizontal", 16),
    Sketcher.Constraint("Vertical", 17),
    Sketcher.Constraint("Horizontal", 18),
    Sketcher.Constraint("Vertical", 19),
    Sketcher.Constraint("Horizontal", 20),
    Sketcher.Constraint("Vertical", 21),
    Sketcher.Constraint("Horizontal", 22),
    Sketcher.Constraint("Vertical", 23),
    Sketcher.Constraint("Horizontal", 24),
    Sketcher.Constraint("Vertical", 25),
    Sketcher.Constraint("Horizontal", 26),
    Sketcher.Constraint("Vertical", 27),
    Sketcher.Constraint("Horizontal", 28),
    Sketcher.Constraint("Vertical", 29),
    Sketcher.Constraint("Horizontal", 30),
    Sketcher.Constraint("Vertical", 31),
    Sketcher.Constraint("Symmetric", 2, 2, 4, 2, -1, 1),
    Sketcher.Constraint("Symmetric", 0, 2, 6, 2, -1, 1),
    Sketcher.Constraint("Symmetric", 8, 2, 20, 2, -1, 1),
    Sketcher.Constraint("Symmetric", 10, 2, 22, 2, -1, 1),
    Sketcher.Constraint("Symmetric", 12, 2, 24, 2, -1, 1),
    Sketcher.Constraint("Symmetric", 14, 2, 26, 2, -1, 1),
    Sketcher.Constraint("Symmetric", 16, 2, 28, 2, -1, 1),
    Sketcher.Constraint("Symmetric", 18, 2, 30, 2, -1, 1),
    Sketcher.Constraint("Symmetric", 11, 2, 14, 2, -2),
    Sketcher.Constraint("Symmetric", 9, 2, 16, 2, -2),
    Sketcher.Constraint("Symmetric", 13, 2, 18, 2, -2),
    Sketcher.Constraint("Vertical", 3, 2, 4, 2),
    Sketcher.Constraint("DistanceX", 1, 1, 1, 2, Q("135 mm")),
    Sketcher.Constraint("DistanceX", 8, 2, 8, 1, Q("20 mm")),
    Sketcher.Constraint("DistanceX", 10, 1, 10, 2, Q("5 mm")),
    Sketcher.Constraint("DistanceY", 0, 2, 0, 1, Q("8 mm")),
    Sketcher.Constraint("DistanceY", 13, 1, 13, 2, Q("3 mm")),
    Sketcher.Constraint("DistanceY", 9, 2, 9, 1, Q("7.5 mm")),
    Sketcher.Constraint("DistanceY", -1, 1, 0, 2, Q("52 mm")),
    Sketcher.Constraint("DistanceX", 8, 2, -1, 1, Q("59 mm")),
    Sketcher.Constraint("DistanceY", -1, 1, 9, 2, Q("25 mm")),
])
pad3 = body.newObject("PartDesign::Pad", "Pad002")
pad3.Profile = sketch10
pad3.Length = 2
doc.recompute()

fillet = body.newObject("PartDesign::Fillet", "Fillet")
fillet.Base = (pad3, edges_at(pad3, [
    (-110, -12, -60),
    (110, -12, -60),
    (110, -12, 60),
    (-110, -12, 60),
]))
fillet.Radius = 3
doc.recompute()

fillet2 = body.newObject("PartDesign::Fillet", "Fillet001")
fillet2.Base = (fillet, edges_at(fillet, [
    (-108.5, -3.5, 45),
    (-108.5, -3.5, 5),
    (-108.5, -22, 5),
    (-108.5, -3.5, -5),
    (-108.5, -3.5, -45),
    (-108.5, -22, -45),
    (-108.5, -22, -5),
    (-85, 1.5, -40),
    (-100, 1.5, -40),
    (-85, 1.5, 40),
    (-100, 1.5, 40),
    (-15, 1.5, 51),
    (-15, 1.5, 35),
    (15, 1.5, 35),
    (15, 1.5, 51),
    (100, 1.5, 45),
    (85, 1.5, 5),
    (100, 1.5, 5),
    (15.297, 1, 0),
    (60, 1, -8.941),
    (60, 1, 8.941),
    (0, 1, -3.059),
    (-44.703, 1, -12),
    (44.703, 1, -12),
    (85, 1.5, -5),
    (100, 1.5, -5),
    (85, 1.5, -45),
    (100, 1.5, -45),
    (-15.297, 1, 0),
    (-60, 1, 8.941),
    (-60, 1, -8.941),
    (-15, 1.5, -35),
    (-15, 1.5, -51),
    (15, 1.5, -51),
    (15, 1.5, -35),
    (-44.703, 1, 12),
    (0, 1, 3.059),
    (44.703, 1, 12),
    (108.5, -3.5, 45),
    (108.5, -22, 45),
    (108.5, -3.5, 5),
    (108.5, -22, 5),
    (108.5, -3.5, -45),
    (108.5, -3.5, -5),
    (108.5, -22, -45),
    (108.5, -22, -5),
    (-107, 0, 0),
    (107, 0, 0),
    (-108.5, -22, 45),
]))
fillet2.Radius = 2

# Sketch on XY plane
sketch11 = body.newObject("Sketcher::SketchObject", "Sketch010")
sketch11.AttachmentSupport = (doc.getObject("XY_Plane"), [""])
sketch11.MapMode = "FlatFace"
add_polygon(sketch11, [(110, 3), (-35, 3), (-35, 1), (35, 1), (35, -27), (110, -27)])  # lines 0-5
sketch11.addConstraint([
    Sketcher.Constraint("Horizontal", 0),
    Sketcher.Constraint("Vertical", 1),
    Sketcher.Constraint("Horizontal", 2),
    Sketcher.Constraint("Vertical", 3),
    Sketcher.Constraint("Horizontal", 4),
    Sketcher.Constraint("Vertical", 5),
    Sketcher.Constraint("DistanceX", 0, 2, 0, 1, Q("145 mm")),
    Sketcher.Constraint("DistanceX", 2, 1, 2, 2, Q("70 mm")),
    Sketcher.Constraint("DistanceY", 1, 2, 1, 1, Q("2 mm")),
    Sketcher.Constraint("DistanceY", 3, 2, 3, 1, Q("28 mm")),
    Sketcher.Constraint("DistanceX", 0, 2, -1, 1, Q("35 mm")),
    Sketcher.Constraint("DistanceY", -1, 1, 0, 2, Q("3 mm")),
])
pocket8 = body.newObject("PartDesign::Pocket", "Pocket007")
pocket8.Profile = sketch11
pocket8.Type = "ThroughAll"
pocket8.Midplane = True

doc.recompute()
